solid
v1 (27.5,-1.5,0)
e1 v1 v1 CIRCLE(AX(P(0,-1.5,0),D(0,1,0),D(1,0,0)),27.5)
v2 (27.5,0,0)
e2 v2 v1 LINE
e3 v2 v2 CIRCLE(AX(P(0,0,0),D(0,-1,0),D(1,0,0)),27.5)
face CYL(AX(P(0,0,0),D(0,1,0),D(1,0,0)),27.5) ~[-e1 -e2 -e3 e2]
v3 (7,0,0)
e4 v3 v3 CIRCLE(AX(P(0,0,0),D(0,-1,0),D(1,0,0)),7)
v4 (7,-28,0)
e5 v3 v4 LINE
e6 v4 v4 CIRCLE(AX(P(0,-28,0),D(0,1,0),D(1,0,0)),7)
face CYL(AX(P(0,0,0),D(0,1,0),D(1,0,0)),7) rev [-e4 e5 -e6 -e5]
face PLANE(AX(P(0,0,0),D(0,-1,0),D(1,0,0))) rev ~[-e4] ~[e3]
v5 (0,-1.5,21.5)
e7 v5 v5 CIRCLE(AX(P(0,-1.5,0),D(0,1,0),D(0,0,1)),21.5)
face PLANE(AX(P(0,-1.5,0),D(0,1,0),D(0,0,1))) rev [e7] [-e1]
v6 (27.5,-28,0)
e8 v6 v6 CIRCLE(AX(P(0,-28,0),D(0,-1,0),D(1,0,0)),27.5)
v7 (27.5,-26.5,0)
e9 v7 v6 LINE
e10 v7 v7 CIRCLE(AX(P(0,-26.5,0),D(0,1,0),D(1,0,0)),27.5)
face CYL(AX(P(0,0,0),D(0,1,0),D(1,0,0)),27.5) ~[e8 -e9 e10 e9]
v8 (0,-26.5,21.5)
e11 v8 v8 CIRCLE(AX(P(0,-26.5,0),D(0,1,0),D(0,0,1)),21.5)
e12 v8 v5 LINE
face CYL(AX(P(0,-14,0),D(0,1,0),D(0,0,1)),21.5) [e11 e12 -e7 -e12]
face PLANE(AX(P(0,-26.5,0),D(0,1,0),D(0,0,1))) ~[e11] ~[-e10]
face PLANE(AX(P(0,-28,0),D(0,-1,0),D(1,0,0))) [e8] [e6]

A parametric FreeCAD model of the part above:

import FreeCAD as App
import Part
import Sketcher

V = App.Vector

doc = App.newDocument("Part")
body = doc.addObject("PartDesign::Body", "Body")

sketch1 = doc.addObject("Sketcher::SketchObject", "Sketch")
body.addObject(sketch1)
sketch1.AttachmentSupport = (doc.XZ_Plane, [""])
sketch1.MapMode = "FlatFace"
sketch1.addGeometry(Part.Circle(V(0, 0, 0), V(0, 0, 1), 28), False)
sketch1.addConstraint([
    Sketcher.Constraint("Coincident", 0, 3, -1, 1),
    Sketcher.Constraint("Diameter", 0, 55.0),
])
pad1 = doc.addObject("PartDesign::Pad", "Pad")
body.addObject(pad1)
pad1.Profile = sketch1
pad1.Length = 28

sketch2 = doc.addObject("Sketcher::SketchObject", "Sketch001")
body.addObject(sketch2)
sketch2.AttachmentSupport = (doc.YZ_Plane, [""])
sketch2.MapMode = "FlatFace"
sketch2.addGeometry([
    Part.LineSegment(V(-26, 28, 0), V(-26, 22, 0)),
    Part.LineSegment(V(-26, 22, 0), V(-2, 22, 0)),
    Part.LineSegment(V(-2, 22, 0), V(-2, 28, 0)),
    Part.LineSegment(V(-2, 28, 0), V(-26, 28, 0)),
], False)
sketch2.addConstraint([
    Sketcher.Constraint("Coincident", 0, 2, 1, 1),
    Sketcher.Constraint("Coincident", 1, 2, 2, 1),
    Sketcher.Constraint("Coincident", 2, 2, 3, 1),
    Sketcher.Constraint("Coincident", 3, 2, 0, 1),
    Sketcher.Constraint("Vertical", 0),
    Sketcher.Constraint("Horizontal", 1),
    Sketcher.Constraint("Vertical", 2),
    Sketcher.Constraint("Horizontal", 3),
    Sketcher.Constraint("DistanceX", 1, 1, 1, 2, 25.0),
    Sketcher.Constraint("DistanceY", 0, 2, 0, 1, 6.0),
    Sketcher.Constraint("DistanceX", 0, 2, -1, 1, 26.5),
    Sketcher.Constraint("DistanceY", -1, 1, 0, 2, 21.5),
])
groove = doc.addObject("PartDesign::Groove", "Groove")
body.addObject(groove)
groove.Profile = sketch2
groove.ReferenceAxis = (sketch2, ["H_Axis"])
groove.Angle = 360

sketch3 = doc.addObject("Sketcher::SketchObject", "Sketch002")
body.addObject(sketch3)
sketch3.AttachmentSupport = (doc.XZ_Plane, [""])
sketch3.MapMode = "FlatFace"
sketch3.addGeometry(Part.Circle(V(0, 0, 0), V(0, 0, 1), 7), False)
sketch3.addConstraint([
    Sketcher.Constraint("Coincident", 0, 3, -1, 1),
    Sketcher.Constraint("Diameter", 0, 14.0),
])
pocket1 = doc.addObject("PartDesign::Pocket", "Pocket")
body.addObject(pocket1)
pocket1.Profile = sketch3
pocket1.Type = "ThroughAll"
pocket1.Reversed = True

doc.recompute()
